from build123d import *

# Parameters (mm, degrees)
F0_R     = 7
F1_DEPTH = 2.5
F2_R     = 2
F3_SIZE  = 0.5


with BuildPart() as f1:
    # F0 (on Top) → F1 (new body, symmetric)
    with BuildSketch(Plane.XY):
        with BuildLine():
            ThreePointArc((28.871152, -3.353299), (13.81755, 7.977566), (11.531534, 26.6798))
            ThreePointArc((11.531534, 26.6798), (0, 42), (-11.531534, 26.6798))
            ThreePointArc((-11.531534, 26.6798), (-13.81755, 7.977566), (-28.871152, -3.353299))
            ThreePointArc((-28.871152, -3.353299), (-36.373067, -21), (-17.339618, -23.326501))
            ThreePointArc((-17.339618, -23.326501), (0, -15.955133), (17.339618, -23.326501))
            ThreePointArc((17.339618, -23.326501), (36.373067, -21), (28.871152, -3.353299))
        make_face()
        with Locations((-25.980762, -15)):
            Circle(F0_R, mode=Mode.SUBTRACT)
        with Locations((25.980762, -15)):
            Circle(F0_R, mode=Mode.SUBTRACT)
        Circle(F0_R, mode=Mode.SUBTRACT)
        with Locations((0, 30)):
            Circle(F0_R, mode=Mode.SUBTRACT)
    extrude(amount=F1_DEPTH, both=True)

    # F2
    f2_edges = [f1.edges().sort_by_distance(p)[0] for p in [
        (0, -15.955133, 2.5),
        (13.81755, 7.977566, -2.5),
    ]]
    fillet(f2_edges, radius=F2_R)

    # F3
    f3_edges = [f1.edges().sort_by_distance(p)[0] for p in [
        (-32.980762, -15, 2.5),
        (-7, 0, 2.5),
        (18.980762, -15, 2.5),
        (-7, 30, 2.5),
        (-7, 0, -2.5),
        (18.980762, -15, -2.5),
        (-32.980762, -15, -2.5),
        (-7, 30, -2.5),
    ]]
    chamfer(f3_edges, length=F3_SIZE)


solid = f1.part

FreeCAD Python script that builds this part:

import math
import FreeCAD as App
import Part
import Sketcher

V = App.Vector
Q = App.Units.Quantity


def edges_at(feature, points):
    """Names of the edges that pass closest to the given points."""
    edges = feature.Shape.Edges
    near = lambda p: min(range(len(edges)), key=lambda i: edges[i].distToShape(Part.Vertex(*p))[0])
    return sorted({f"Edge{near(p) + 1}" for p in points})

doc = App.newDocument("Part")
body = doc.addObject("PartDesign::Body", "Body")

sketch1 = body.newObject("Sketcher::SketchObject", "Sketch")
sketch1.AttachmentSupport = (doc.getObject("XY_Plane"), [""])
sketch1.MapMode = "FlatFace"
sketch1.addGeometry([
    Part.ArcOfCircle(Part.Circle(V(35, 20, 0), V(0, 0, 1), 24), math.radians(164), math.radians(256)),
    Part.ArcOfCircle(Part.Circle(V(0, 30, 0), V(0, 0, 1), 12), math.radians(-16), math.radians(196)),
    Part.ArcOfCircle(Part.Circle(V(-35, 20, 0), V(0, 0, 1), 24), math.radians(-76), math.radians(16)),
    Part.ArcOfCircle(Part.Circle(V(-26, -15, 0), V(0, 0, 1), 12), math.radians(104), math.radians(316)),
    Part.ArcOfCircle(Part.Circle(V(0, -40, 0), V(0, 0, 1), 24), math.radians(44), math.radians(136)),
    Part.ArcOfCircle(Part.Circle(V(26, -15, 0), V(0, 0, 1), 12), math.radians(-136), math.radians(76)),
    Part.Circle(V(-26, -15, 0), V(0, 0, 1), 7),
    Part.Circle(V(26, -15, 0), V(0, 0, 1), 7),
    Part.Circle(V(0, 0, 0), V(0, 0, 1), 7),
    Part.Circle(V(0, 30, 0), V(0, 0, 1), 7),
], False)
sketch1.addConstraint([
    Sketcher.Constraint("Tangent", 0, 1, 1, 1),
    Sketcher.Constraint("Tangent", 1, 2, 2, 2),
    Sketcher.Constraint("Tangent", 2, 1, 3, 1),
    Sketcher.Constraint("Tangent", 3, 2, 4, 2),
    Sketcher.Constraint("Tangent", 4, 1, 5, 1),
    Sketcher.Constraint("Tangent", 5, 2, 0, 2),
    Sketcher.Constraint("Coincident", 8, 3, -1, 1),
    Sketcher.Constraint("Coincident", 6, 3, 3, 3),
    Sketcher.Constraint("Coincident", 7, 3, 5, 3),
    Sketcher.Constraint("Coincident", 9, 3, 1, 3),
    Sketcher.Constraint("Equal", 0, 2),
    Sketcher.Constraint("Equal", 1, 3),
    Sketcher.Constraint("Equal", 3, 5),
    Sketcher.Constraint("Equal", 6, 7),
    Sketcher.Constraint("Equal", 7, 8),
    Sketcher.Constraint("Equal", 8, 9),
    Sketcher.Constraint("Symmetric", 0, 3, 2, 3, -2),
    Sketcher.Constraint("PointOnObject", 4, 3, -2),
    Sketcher.Constraint("Diameter", 6, Q("14 mm")),
    Sketcher.Constraint("Radius", 1, Q("12 mm")),
    Sketcher.Constraint("DistanceY", -1, 1, 1, 3, Q("30 mm")),
    Sketcher.Constraint("DistanceY", 3, 3, -1, 1, Q("15 mm")),
    Sketcher.Constraint("Radius", 0, Q("24.079613 mm")),
    Sketcher.Constraint("Radius", 4, Q("24.079616 mm")),
    Sketcher.Constraint("DistanceY", -1, 1, 1, 2, Q("26.6798 mm")),
])
pad1 = body.newObject("PartDesign::Pad", "Pad")
pad1.Profile = sketch1
pad1.Length = 5
pad1.Midplane = True
doc.recompute()

fillet = body.newObject("PartDesign::Fillet", "Fillet")
fillet.Base = (pad1, edges_at(pad1, [(0, -15.955, 2.5), (13.818, 7.978, -2.5)]))
fillet.Radius = 2
doc.recompute()

chamfer = body.newObject("PartDesign::Chamfer", "Chamfer")
chamfer.Base = (fillet, edges_at(fillet, [
    (-32.981, -15, 2.5),
    (-7, 0, 2.5),
    (18.981, -15, 2.5),
    (-7, 30, 2.5),
    (-7, 0, -2.5),
    (18.981, -15, -2.5),
    (-32.981, -15, -2.5),
    (-7, 30, -2.5),
]))
chamfer.Size = 0.5

doc.recompute()
